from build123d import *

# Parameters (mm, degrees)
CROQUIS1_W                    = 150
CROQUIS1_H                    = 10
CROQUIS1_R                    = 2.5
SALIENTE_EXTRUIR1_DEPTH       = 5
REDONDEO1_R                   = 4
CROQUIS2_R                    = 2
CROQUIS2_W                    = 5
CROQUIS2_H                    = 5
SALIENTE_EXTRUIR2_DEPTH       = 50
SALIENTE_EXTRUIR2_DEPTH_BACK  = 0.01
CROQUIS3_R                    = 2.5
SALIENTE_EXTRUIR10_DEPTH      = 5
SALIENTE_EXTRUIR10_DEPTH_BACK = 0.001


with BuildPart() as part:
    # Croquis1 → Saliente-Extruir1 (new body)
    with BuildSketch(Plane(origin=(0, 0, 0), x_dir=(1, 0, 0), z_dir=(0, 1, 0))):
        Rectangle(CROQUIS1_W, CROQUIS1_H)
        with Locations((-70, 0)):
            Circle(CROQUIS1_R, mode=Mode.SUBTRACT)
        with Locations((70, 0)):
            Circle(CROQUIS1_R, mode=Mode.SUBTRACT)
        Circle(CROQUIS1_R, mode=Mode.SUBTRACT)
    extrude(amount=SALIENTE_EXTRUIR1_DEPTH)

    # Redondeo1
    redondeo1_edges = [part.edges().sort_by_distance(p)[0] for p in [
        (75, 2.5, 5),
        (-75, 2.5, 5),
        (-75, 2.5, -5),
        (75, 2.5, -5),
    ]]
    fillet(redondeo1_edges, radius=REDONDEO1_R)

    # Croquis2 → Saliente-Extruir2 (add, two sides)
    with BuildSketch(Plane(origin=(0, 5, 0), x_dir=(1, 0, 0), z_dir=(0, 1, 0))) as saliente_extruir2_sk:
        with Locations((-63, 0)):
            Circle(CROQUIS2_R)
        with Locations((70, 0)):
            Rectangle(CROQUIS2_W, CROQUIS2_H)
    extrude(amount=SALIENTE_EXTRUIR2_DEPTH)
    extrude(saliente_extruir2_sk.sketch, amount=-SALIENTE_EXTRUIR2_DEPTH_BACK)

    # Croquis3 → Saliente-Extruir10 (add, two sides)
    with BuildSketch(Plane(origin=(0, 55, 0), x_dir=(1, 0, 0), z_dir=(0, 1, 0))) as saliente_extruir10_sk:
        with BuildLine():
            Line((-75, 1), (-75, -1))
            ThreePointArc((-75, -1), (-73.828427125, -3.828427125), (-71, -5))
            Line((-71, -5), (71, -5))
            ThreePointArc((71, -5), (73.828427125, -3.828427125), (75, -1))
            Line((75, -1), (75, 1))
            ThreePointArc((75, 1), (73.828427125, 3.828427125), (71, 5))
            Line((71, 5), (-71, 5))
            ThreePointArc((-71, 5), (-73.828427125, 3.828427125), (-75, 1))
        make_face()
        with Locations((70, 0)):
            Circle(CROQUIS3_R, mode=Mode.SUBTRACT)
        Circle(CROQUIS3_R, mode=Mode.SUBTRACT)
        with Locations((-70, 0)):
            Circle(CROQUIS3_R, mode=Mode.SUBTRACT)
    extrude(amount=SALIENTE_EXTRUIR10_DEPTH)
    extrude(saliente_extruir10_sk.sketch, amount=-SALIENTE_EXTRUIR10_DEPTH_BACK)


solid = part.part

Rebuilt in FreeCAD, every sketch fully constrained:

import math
import FreeCAD as App
import Part
import Sketcher

V = App.Vector


def edges_at(feature, points):
    """Names of the edges that pass closest to the given points."""
    edges = feature.Shape.Edges
    near = lambda p: min(range(len(edges)), key=lambda i: edges[i].distToShape(Part.Vertex(*p))[0])
    return sorted({f"Edge{near(p) + 1}" for p in points})

doc = App.newDocument("Part")
body = doc.addObject("PartDesign::Body", "Body")

sketch1 = body.newObject("Sketcher::SketchObject", "Sketch")
sketch1.AttachmentSupport = (doc.getObject("XZ_Plane"), [""])
sketch1.MapMode = "FlatFace"
sketch1.addGeometry([
    Part.LineSegment(V(-75, -5, 0), V(-75, 5, 0)),
    Part.LineSegment(V(-75, 5, 0), V(75, 5, 0)),
    Part.LineSegment(V(75, 5, 0), V(75, -5, 0)),
    Part.LineSegment(V(75, -5, 0), V(-75, -5, 0)),
    Part.Circle(V(-70, 0, 0), V(0, 0, 1), 2.5),
    Part.Circle(V(0, 0, 0), V(0, 0, 1), 2.5),
    Part.Circle(V(70, 0, 0), V(0, 0, 1), 2.5),
], False)
sketch1.addConstraint([
    Sketcher.Constraint("Coincident", 0, 2, 1, 1),
    Sketcher.Constraint("Coincident", 1, 2, 2, 1),
    Sketcher.Constraint("Coincident", 2, 2, 3, 1),
    Sketcher.Constraint("Coincident", 3, 2, 0, 1),
    Sketcher.Constraint("Vertical", 0),
    Sketcher.Constraint("Horizontal", 1),
    Sketcher.Constraint("Vertical", 2),
    Sketcher.Constraint("Horizontal", 3),
    Sketcher.Constraint("Coincident", 5, 3, -1, 1),
    Sketcher.Constraint("Equal", 4, 5),
    Sketcher.Constraint("Equal", 5, 6),
    Sketcher.Constraint("Symmetric", 4, 3, 6, 3, -1, 1),
    Sketcher.Constraint("Symmetric", 0, 2, 2, 2, -1, 1),
    Sketcher.Constraint("PointOnObject", 4, 3, -1),
    Sketcher.Constraint("Diameter", 4, 5.0),
    Sketcher.Constraint("DistanceX", 1, 1, 1, 2, 150.0),
    Sketcher.Constraint("DistanceY", 0, 1, 0, 2, 10.0),
    Sketcher.Constraint("DistanceX", 4, 3, -1, 1, 70.0),
])
pad1 = body.newObject("PartDesign::Pad", "Pad")
pad1.Profile = sketch1
pad1.Length = 5
pad1.Reversed = True
doc.recompute()

fillet = body.newObject("PartDesign::Fillet", "Fillet")
fillet.Base = (pad1, edges_at(pad1, [
    (75, 2.5, 5),
    (-75, 2.5, 5),
    (-75, 2.5, -5),
    (75, 2.5, -5),
]))
fillet.Radius = 4

sketch2 = body.newObject("Sketcher::SketchObject", "Sketch001")
sketch2.AttachmentSupport = (doc.getObject("XZ_Plane"), [""])
sketch2.MapMode = "FlatFace"
sketch2.AttachmentOffset = App.Placement(V(0, 0, -5), App.Rotation())
sketch2.addGeometry([
    Part.Circle(V(-63, 0, 0), V(0, 0, 1), 2),
    Part.LineSegment(V(67.5, -2.5, 0), V(67.5, 2.5, 0)),
    Part.LineSegment(V(67.5, 2.5, 0), V(72.5, 2.5, 0)),
    Part.LineSegment(V(72.5, 2.5, 0), V(72.5, -2.5, 0)),
    Part.LineSegment(V(72.5, -2.5, 0), V(67.5, -2.5, 0)),
], False)
sketch2.addConstraint([
    Sketcher.Constraint("Coincident", 1, 2, 2, 1),
    Sketcher.Constraint("Coincident", 2, 2, 3, 1),
    Sketcher.Constraint("Coincident", 3, 2, 4, 1),
    Sketcher.Constraint("Coincident", 4, 2, 1, 1),
    Sketcher.Constraint("Vertical", 1),
    Sketcher.Constraint("Horizontal", 2),
    Sketcher.Constraint("Vertical", 3),
    Sketcher.Constraint("Horizontal", 4),
    Sketcher.Constraint("PointOnObject", 0, 3, -1),
    Sketcher.Constraint("Equal", 4, 1),
    Sketcher.Constraint("Diameter", 0, 4.0),
    Sketcher.Constraint("DistanceX", 2, 1, 2, 2, 5.0),
    Sketcher.Constraint("DistanceX", 0, 3, -1, 1, 63.0),
    Sketcher.Constraint("DistanceX", -1, 1, 1, 2, 67.5),
    Sketcher.Constraint("DistanceY", -1, 1, 1, 2, 2.5),
])
pad2 = body.newObject("PartDesign::Pad", "Pad001")
pad2.Profile = sketch2
pad2.Type = "TwoLengths"
pad2.Length = 50
pad2.Length2 = 0.01
pad2.Reversed = True

sketch3 = body.newObject("Sketcher::SketchObject", "Sketch002")
sketch3.AttachmentSupport = (doc.getObject("XZ_Plane"), [""])
sketch3.MapMode = "FlatFace"
sketch3.AttachmentOffset = App.Placement(V(0, 0, -55), App.Rotation())
sketch3.addGeometry([
    Part.LineSegment(V(-75, -1, 0), V(-75, 1, 0)),
    Part.ArcOfCircle(Part.Circle(V(-71, 1, 0), V(0, 0, 1), 4), math.radians(90), math.radians(180)),
    Part.LineSegment(V(-71, 5, 0), V(71, 5, 0)),
    Part.ArcOfCircle(Part.Circle(V(71, 1, 0), V(0, 0, 1), 4), math.radians(0), math.radians(90)),
    Part.LineSegment(V(75, 1, 0), V(75, -1, 0)),
    Part.ArcOfCircle(Part.Circle(V(71, -1, 0), V(0, 0, 1), 4), math.radians(-90), math.radians(0)),
    Part.LineSegment(V(71, -5, 0), V(-71, -5, 0)),
    Part.ArcOfCircle(Part.Circle(V(-71, -1, 0), V(0, 0, 1), 4), math.radians(180), math.radians(270)),
    Part.Circle(V(-70, 0, 0), V(0, 0, 1), 2.5),
    Part.Circle(V(0, 0, 0), V(0, 0, 1), 2.5),
    Part.Circle(V(70, 0, 0), V(0, 0, 1), 2.5),
], False)
sketch3.addConstraint([
    Sketcher.Constraint("Tangent", 0, 2, 1, 2),
    Sketcher.Constraint("Tangent", 1, 1, 2, 1),
    Sketcher.Constraint("Tangent", 2, 2, 3, 2),
    Sketcher.Constraint("Tangent", 3, 1, 4, 1),
    Sketcher.Constraint("Tangent", 4, 2, 5, 2),
    Sketcher.Constraint("Tangent", 5, 1, 6, 1),
    Sketcher.Constraint("Tangent", 6, 2, 7, 2),
    Sketcher.Constraint("Tangent", 7, 1, 0, 1),
    Sketcher.Constraint("Vertical", 0),
    Sketcher.Constraint("Horizontal", 2),
    Sketcher.Constraint("Vertical", 4),
    Sketcher.Constraint("Horizontal", 6),
    Sketcher.Constraint("Coincident", 9, 3, -1, 1),
    Sketcher.Constraint("Equal", 1, 3),
    Sketcher.Constraint("Equal", 3, 5),
    Sketcher.Constraint("Equal", 5, 7),
    Sketcher.Constraint("Equal", 8, 9),
    Sketcher.Constraint("Equal", 9, 10),
    Sketcher.Constraint("Symmetric", 1, 3, 5, 3, -1, 1),
    Sketcher.Constraint("Symmetric", 8, 3, 10, 3, -1, 1),
    Sketcher.Constraint("PointOnObject", 8, 3, -1),
    Sketcher.Constraint("Diameter", 8, 5.0),
    Sketcher.Constraint("Radius", 1, 4.0),
    Sketcher.Constraint("DistanceX", 2, 1, 2, 2, 142.0),
    Sketcher.Constraint("DistanceY", 0, 1, 0, 2, 2.0),
    Sketcher.Constraint("DistanceX", 8, 3, -1, 1, 70.0),
])
pad3 = body.newObject("PartDesign::Pad", "Pad002")
pad3.Profile = sketch3
pad3.Type = "TwoLengths"
pad3.Length = 5
pad3.Length2 = 0.001
pad3.Reversed = True

doc.recompute()
